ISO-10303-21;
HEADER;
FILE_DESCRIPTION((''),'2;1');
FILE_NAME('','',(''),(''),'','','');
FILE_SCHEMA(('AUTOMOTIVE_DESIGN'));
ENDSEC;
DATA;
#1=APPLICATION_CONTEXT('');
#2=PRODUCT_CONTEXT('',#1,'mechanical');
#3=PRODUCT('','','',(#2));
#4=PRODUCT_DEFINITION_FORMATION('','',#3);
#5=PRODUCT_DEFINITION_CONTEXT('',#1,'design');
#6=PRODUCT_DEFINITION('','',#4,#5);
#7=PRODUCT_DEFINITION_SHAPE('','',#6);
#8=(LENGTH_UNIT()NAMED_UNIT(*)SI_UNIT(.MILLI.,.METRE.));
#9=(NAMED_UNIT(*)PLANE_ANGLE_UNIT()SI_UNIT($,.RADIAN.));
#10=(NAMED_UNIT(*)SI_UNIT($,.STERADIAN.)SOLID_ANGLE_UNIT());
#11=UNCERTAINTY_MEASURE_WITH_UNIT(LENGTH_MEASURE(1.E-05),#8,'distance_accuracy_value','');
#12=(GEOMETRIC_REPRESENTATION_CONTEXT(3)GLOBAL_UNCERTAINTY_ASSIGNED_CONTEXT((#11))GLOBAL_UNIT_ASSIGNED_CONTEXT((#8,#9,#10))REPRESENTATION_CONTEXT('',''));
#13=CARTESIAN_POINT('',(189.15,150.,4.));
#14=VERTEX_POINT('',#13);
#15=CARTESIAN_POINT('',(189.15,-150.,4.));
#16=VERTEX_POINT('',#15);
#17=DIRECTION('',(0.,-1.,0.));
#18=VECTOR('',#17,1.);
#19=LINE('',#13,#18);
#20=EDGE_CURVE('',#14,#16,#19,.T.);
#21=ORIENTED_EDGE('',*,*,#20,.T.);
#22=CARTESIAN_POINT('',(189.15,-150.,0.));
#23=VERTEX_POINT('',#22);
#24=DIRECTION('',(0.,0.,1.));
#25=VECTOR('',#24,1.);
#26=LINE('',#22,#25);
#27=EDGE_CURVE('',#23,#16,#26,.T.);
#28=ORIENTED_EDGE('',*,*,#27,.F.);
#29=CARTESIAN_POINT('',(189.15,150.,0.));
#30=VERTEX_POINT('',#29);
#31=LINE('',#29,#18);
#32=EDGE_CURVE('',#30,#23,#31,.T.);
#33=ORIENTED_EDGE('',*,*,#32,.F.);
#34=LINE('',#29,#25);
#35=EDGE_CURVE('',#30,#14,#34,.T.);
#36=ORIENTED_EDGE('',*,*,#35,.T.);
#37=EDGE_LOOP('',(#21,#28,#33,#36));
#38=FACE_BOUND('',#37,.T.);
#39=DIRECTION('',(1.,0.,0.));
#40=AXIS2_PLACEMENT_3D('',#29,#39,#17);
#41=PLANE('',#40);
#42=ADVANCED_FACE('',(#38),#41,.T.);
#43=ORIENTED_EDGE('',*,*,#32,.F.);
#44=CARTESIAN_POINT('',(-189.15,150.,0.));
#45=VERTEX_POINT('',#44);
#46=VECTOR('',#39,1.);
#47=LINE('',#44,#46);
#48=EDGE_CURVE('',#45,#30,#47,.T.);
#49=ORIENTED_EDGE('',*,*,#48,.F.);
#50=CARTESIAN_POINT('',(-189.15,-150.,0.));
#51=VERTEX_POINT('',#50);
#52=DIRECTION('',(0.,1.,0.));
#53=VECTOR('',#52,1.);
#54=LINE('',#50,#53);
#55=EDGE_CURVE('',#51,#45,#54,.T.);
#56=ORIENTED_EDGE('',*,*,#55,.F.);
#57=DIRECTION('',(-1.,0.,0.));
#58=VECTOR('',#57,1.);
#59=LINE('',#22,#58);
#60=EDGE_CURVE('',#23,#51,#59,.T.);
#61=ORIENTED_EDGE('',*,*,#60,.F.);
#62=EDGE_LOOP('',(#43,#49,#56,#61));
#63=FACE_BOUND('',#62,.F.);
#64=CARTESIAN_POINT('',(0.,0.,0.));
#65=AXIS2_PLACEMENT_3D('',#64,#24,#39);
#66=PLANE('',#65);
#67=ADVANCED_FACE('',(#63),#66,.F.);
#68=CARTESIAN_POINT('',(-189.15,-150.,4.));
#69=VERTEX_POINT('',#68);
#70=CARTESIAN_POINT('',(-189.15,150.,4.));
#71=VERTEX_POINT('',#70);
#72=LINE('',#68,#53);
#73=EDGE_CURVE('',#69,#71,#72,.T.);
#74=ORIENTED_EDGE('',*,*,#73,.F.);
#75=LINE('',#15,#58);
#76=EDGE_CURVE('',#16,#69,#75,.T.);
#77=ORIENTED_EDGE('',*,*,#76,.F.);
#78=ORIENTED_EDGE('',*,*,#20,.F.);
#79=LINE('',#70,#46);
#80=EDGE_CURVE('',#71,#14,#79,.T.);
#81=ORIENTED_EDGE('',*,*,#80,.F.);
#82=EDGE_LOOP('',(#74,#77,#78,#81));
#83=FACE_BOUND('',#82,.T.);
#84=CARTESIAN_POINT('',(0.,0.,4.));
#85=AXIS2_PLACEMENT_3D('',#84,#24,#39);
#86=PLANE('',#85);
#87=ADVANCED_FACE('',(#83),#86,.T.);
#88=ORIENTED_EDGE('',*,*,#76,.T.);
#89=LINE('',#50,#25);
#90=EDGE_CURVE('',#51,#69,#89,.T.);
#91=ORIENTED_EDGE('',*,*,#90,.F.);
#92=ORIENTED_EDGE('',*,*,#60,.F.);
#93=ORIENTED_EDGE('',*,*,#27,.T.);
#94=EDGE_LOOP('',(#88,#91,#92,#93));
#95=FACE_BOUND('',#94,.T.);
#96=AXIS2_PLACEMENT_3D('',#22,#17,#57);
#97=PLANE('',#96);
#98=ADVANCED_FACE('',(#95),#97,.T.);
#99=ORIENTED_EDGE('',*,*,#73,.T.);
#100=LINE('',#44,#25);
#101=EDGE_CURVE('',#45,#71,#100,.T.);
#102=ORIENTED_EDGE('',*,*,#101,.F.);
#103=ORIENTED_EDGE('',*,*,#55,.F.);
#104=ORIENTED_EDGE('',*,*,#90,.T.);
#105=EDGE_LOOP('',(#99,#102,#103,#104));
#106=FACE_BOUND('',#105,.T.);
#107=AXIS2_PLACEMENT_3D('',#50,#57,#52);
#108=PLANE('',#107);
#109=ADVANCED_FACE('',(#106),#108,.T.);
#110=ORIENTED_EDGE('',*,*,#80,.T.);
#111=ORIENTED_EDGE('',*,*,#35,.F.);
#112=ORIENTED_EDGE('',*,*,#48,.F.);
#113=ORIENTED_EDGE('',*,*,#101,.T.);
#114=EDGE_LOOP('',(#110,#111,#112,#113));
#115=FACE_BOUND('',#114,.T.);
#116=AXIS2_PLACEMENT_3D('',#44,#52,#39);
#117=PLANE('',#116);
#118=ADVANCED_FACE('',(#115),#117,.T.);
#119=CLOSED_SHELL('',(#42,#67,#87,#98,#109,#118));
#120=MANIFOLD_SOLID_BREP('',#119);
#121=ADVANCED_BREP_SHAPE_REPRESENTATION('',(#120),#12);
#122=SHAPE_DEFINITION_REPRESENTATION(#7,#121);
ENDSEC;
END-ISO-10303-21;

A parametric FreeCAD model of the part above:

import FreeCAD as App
import Part
import Sketcher
from FreeCAD import Vector


def add_polygon(sketch, points):
    """Adds a closed chain of lines whose ends are joined by coincident constraints."""
    first, n = sketch.GeometryCount, len(points)
    for a, b in zip(points, points[1:] + points[:1]):
        sketch.addGeometry(Part.LineSegment(App.Vector(*a, 0), App.Vector(*b, 0)), False)
    for i in range(n):
        sketch.addConstraint(Sketcher.Constraint("Coincident", first + i, 2, first + (i + 1) % n, 1))

doc = App.newDocument("Part")
body = doc.addObject("PartDesign::Body", "Body")

sketch1 = doc.addObject("Sketcher::SketchObject", "Sketch")
body.addObject(sketch1)
sketch1.AttachmentSupport = (doc.XY_Plane, [""])
sketch1.MapMode = "FlatFace"
add_polygon(sketch1, [(-189, -150), (189, -150), (189, 150), (-189, 150)])
sketch1.addConstraint(Sketcher.Constraint("Horizontal", 0))
sketch1.addConstraint(Sketcher.Constraint("Vertical", 1))
sketch1.addConstraint(Sketcher.Constraint("Horizontal", 2))
sketch1.addConstraint(Sketcher.Constraint("Vertical", 3))
sketch1.addConstraint(Sketcher.Constraint("Symmetric", 0, 2, 2, 2, -1, 1))
sketch1.addConstraint(Sketcher.Constraint("DistanceY", 1, 1, 1, 2, 300.0))
sketch1.addConstraint(Sketcher.Constraint("DistanceX", 0, 1, 0, 2, 378.3))
pad1 = doc.addObject("PartDesign::Pad", "Pad")
body.addObject(pad1)
pad1.Profile = sketch1
pad1.Length = 4

doc.recompute()
